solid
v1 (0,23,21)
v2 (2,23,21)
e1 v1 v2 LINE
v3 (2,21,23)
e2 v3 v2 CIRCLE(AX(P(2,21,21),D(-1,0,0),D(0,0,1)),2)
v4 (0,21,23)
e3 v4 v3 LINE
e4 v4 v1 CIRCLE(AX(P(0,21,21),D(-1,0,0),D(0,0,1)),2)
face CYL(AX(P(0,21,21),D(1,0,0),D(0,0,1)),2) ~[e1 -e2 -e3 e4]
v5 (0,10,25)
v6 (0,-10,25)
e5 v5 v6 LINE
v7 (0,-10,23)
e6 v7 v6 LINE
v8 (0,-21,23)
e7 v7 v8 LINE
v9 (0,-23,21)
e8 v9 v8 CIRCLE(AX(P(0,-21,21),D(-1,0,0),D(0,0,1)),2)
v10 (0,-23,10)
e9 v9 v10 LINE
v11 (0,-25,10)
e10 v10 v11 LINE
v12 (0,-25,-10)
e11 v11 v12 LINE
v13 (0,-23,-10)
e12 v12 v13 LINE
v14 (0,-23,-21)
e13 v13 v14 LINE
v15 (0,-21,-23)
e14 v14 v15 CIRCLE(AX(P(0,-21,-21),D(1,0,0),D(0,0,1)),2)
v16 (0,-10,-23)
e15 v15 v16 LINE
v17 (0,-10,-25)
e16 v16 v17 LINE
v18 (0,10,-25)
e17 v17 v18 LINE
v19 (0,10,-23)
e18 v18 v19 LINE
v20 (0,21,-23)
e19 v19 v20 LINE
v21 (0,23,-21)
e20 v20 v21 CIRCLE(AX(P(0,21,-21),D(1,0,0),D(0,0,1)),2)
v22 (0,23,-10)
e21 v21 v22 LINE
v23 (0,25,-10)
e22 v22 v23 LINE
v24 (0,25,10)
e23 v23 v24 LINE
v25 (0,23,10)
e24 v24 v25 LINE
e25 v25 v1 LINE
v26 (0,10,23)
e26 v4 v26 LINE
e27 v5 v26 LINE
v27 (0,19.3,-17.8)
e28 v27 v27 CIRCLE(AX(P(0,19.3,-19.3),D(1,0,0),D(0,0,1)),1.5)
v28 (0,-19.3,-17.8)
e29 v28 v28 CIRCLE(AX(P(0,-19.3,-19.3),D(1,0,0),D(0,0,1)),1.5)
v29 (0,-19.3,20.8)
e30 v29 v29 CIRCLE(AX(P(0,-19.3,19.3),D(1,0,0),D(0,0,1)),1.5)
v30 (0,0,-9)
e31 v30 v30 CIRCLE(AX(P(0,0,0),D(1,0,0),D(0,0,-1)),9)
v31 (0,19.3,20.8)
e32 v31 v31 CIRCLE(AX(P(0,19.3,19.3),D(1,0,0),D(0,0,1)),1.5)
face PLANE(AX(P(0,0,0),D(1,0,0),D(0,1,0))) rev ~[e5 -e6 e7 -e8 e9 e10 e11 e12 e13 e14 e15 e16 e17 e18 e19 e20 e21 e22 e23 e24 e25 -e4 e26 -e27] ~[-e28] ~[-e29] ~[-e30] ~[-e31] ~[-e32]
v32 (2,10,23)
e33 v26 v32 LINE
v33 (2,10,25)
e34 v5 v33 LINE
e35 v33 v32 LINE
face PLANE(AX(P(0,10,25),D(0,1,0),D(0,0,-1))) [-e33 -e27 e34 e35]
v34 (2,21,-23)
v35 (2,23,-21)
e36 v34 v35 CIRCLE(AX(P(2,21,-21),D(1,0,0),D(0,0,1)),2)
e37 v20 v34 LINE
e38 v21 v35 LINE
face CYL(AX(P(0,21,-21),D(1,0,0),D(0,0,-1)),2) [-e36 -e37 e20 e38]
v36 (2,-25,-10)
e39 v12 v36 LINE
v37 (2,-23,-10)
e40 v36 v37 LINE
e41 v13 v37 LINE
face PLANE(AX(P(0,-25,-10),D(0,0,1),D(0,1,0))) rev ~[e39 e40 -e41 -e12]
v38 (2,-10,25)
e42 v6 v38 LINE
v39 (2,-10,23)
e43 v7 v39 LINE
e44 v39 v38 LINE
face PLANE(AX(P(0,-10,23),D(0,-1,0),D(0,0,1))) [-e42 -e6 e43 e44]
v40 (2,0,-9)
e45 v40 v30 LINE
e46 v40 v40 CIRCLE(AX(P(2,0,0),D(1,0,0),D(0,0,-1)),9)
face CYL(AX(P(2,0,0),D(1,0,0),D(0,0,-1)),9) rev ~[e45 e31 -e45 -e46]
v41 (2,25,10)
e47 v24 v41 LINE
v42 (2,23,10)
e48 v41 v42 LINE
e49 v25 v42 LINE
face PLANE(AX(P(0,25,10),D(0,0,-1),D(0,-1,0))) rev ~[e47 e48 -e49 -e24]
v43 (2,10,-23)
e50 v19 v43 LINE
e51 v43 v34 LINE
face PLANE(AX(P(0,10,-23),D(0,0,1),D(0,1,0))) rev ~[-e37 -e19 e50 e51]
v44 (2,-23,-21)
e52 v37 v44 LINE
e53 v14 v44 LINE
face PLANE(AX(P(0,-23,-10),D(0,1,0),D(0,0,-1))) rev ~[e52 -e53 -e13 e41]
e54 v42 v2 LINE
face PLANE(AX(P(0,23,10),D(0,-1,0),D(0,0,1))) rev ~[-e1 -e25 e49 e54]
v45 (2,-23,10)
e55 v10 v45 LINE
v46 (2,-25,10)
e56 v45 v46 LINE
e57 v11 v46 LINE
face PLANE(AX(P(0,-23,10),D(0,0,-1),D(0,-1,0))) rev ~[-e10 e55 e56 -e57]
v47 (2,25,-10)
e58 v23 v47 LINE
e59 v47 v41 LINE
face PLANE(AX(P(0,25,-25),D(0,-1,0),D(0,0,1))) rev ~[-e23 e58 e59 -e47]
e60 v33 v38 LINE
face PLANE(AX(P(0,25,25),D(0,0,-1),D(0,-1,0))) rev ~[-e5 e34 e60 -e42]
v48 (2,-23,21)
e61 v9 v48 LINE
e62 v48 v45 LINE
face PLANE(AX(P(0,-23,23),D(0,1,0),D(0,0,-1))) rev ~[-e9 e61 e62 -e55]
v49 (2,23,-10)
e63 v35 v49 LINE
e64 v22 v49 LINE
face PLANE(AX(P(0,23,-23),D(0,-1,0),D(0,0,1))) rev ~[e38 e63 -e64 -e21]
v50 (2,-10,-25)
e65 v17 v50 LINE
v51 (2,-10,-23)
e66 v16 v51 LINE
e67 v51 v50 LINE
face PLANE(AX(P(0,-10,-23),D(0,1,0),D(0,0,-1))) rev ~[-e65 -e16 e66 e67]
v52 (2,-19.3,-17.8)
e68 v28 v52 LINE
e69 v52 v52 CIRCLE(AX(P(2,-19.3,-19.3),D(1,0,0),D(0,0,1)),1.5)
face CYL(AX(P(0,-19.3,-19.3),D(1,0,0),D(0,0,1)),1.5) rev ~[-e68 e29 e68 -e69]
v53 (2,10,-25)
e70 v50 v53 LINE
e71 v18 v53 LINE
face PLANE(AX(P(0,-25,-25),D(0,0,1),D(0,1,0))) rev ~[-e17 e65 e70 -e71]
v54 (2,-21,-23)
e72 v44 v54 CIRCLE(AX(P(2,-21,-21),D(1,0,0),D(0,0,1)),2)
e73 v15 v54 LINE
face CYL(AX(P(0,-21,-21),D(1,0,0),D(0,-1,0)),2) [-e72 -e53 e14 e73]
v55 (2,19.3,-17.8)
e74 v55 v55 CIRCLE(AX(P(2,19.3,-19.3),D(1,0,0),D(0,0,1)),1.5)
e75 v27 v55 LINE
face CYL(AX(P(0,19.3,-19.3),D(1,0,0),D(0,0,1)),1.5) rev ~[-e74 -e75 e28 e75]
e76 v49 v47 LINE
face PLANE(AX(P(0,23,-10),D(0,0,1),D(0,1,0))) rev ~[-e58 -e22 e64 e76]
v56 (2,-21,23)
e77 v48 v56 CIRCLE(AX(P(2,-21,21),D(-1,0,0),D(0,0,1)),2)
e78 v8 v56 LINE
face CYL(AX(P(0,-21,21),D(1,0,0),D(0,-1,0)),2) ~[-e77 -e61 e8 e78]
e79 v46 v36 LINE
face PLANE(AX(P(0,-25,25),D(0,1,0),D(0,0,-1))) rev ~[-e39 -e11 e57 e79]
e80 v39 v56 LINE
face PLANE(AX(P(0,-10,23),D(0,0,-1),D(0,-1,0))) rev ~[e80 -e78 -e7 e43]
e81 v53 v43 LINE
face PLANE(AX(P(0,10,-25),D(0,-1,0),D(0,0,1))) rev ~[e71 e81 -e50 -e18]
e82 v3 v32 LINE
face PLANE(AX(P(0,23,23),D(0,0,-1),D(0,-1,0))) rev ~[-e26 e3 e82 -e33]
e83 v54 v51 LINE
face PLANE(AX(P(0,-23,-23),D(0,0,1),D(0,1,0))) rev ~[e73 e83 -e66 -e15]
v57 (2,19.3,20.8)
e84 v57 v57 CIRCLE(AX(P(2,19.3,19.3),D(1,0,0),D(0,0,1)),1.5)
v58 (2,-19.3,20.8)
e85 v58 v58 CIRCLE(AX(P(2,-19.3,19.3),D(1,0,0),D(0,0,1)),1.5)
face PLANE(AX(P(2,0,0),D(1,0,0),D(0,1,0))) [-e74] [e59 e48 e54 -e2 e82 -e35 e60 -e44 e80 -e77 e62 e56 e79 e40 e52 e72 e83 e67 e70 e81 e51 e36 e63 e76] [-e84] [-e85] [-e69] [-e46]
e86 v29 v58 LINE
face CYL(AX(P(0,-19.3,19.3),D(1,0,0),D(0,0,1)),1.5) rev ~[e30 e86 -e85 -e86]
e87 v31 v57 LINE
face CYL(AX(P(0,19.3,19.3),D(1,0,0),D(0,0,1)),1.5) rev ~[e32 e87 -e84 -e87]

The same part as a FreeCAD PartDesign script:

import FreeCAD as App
import Part
import Sketcher

V = App.Vector


def edges_at(feature, points):
    """Names of the edges that pass closest to the given points."""
    edges = feature.Shape.Edges
    near = lambda p: min(range(len(edges)), key=lambda i: edges[i].distToShape(Part.Vertex(*p))[0])
    return sorted({f"Edge{near(p) + 1}" for p in points})

doc = App.newDocument("Part")
body = doc.addObject("PartDesign::Body", "Body")

# Sketch on YZ plane
sketch1 = body.newObject("Sketcher::SketchObject", "Sketch")
sketch1.AttachmentSupport = (doc.getObject("YZ_Plane"), [""])
sketch1.MapMode = "FlatFace"
sketch1.addGeometry(Part.LineSegment(V(-25, 25, 0), V(-25, -25, 0)), False)
sketch1.addGeometry(Part.LineSegment(V(-25, -25, 0), V(25, -25, 0)), False)
sketch1.addGeometry(Part.LineSegment(V(25, -25, 0), V(25, 25, 0)), False)
sketch1.addGeometry(Part.LineSegment(V(25, 25, 0), V(-25, 25, 0)), False)
sketch1.addConstraint(Sketcher.Constraint("Coincident", 0, 2, 1, 1))
sketch1.addConstraint(Sketcher.Constraint("Coincident", 1, 2, 2, 1))
sketch1.addConstraint(Sketcher.Constraint("Coincident", 2, 2, 3, 1))
sketch1.addConstraint(Sketcher.Constraint("Coincident", 3, 2, 0, 1))
sketch1.addConstraint(Sketcher.Constraint("Vertical", 0))
sketch1.addConstraint(Sketcher.Constraint("Horizontal", 1))
sketch1.addConstraint(Sketcher.Constraint("Vertical", 2))
sketch1.addConstraint(Sketcher.Constraint("Horizontal", 3))
sketch1.addConstraint(Sketcher.Constraint("Symmetric", 0, 2, 2, 2, -1, 1))
sketch1.addConstraint(Sketcher.Constraint("Equal", 3, 0))
sketch1.addConstraint(Sketcher.Constraint("DistanceX", 1, 1, 1, 2, 50.0))
pad1 = body.newObject("PartDesign::Pad", "Pad")
pad1.Profile = sketch1
pad1.Length = 2

# Sketch on YZ plane
sketch2 = body.newObject("Sketcher::SketchObject", "Sketch001")
sketch2.AttachmentSupport = (doc.getObject("YZ_Plane"), [""])
sketch2.MapMode = "FlatFace"
sketch2.addGeometry(Part.Circle(V(19.3, -19.3, 0), V(0, 0, 1), 1.5), False)
sketch2.addConstraint(Sketcher.Constraint("Diameter", 0, 3.0))
sketch2.addConstraint(Sketcher.Constraint("DistanceX", -1, 1, 0, 3, 19.3))
sketch2.addConstraint(Sketcher.Constraint("DistanceY", 0, 3, -1, 1, 19.3))
doc.recompute()
hole = body.newObject("PartDesign::Hole", "Hole")
hole.Profile = sketch2
hole.ThreadType = "None"
hole.Diameter = 3
hole.DepthType = "ThroughAll"
hole.Reversed = True

# Sketch on YZ plane
sketch3 = body.newObject("Sketcher::SketchObject", "Sketch002")
sketch3.AttachmentSupport = (doc.getObject("YZ_Plane"), [""])
sketch3.MapMode = "FlatFace"
sketch3.addGeometry(Part.Circle(V(19.3, 19.3, 0), V(0, 0, 1), 1.5), False)
sketch3.addConstraint(Sketcher.Constraint("Diameter", 0, 3.0))
sketch3.addConstraint(Sketcher.Constraint("DistanceX", -1, 1, 0, 3, 19.3))
sketch3.addConstraint(Sketcher.Constraint("DistanceY", -1, 1, 0, 3, 19.3))
doc.recompute()
hole2 = body.newObject("PartDesign::Hole", "Hole001")
hole2.Profile = sketch3
hole2.ThreadType = "None"
hole2.Diameter = 3
hole2.DepthType = "ThroughAll"
hole2.Reversed = True

# Sketch on YZ plane
sketch4 = body.newObject("Sketcher::SketchObject", "Sketch003")
sketch4.AttachmentSupport = (doc.getObject("YZ_Plane"), [""])
sketch4.MapMode = "FlatFace"
sketch4.addGeometry(Part.Circle(V(-19.3, -19.3, 0), V(0, 0, 1), 1.5), False)
sketch4.addConstraint(Sketcher.Constraint("Diameter", 0, 3.0))
sketch4.addConstraint(Sketcher.Constraint("DistanceX", 0, 3, -1, 1, 19.3))
sketch4.addConstraint(Sketcher.Constraint("DistanceY", 0, 3, -1, 1, 19.3))
doc.recompute()
hole3 = body.newObject("PartDesign::Hole", "Hole002")
hole3.Profile = sketch4
hole3.ThreadType = "None"
hole3.Diameter = 3
hole3.DepthType = "ThroughAll"
hole3.Reversed = True

# Sketch on YZ plane
sketch5 = body.newObject("Sketcher::SketchObject", "Sketch004")
sketch5.AttachmentSupport = (doc.getObject("YZ_Plane"), [""])
sketch5.MapMode = "FlatFace"
sketch5.addGeometry(Part.Circle(V(-19.3, 19.3, 0), V(0, 0, 1), 1.5), False)
sketch5.addConstraint(Sketcher.Constraint("Diameter", 0, 3.0))
sketch5.addConstraint(Sketcher.Constraint("DistanceX", 0, 3, -1, 1, 19.3))
sketch5.addConstraint(Sketcher.Constraint("DistanceY", -1, 1, 0, 3, 19.3))
doc.recompute()
hole4 = body.newObject("PartDesign::Hole", "Hole003")
hole4.Profile = sketch5
hole4.ThreadType = "None"
hole4.Diameter = 3
hole4.DepthType = "ThroughAll"
hole4.Reversed = True

# Sketch on YZ plane
sketch6 = body.newObject("Sketcher::SketchObject", "Sketch005")
sketch6.AttachmentSupport = (doc.getObject("YZ_Plane"), [""])
sketch6.MapMode = "FlatFace"
sketch6.addGeometry(Part.LineSegment(V(-10, 23, 0), V(-23, 23, 0)), False)
sketch6.addGeometry(Part.LineSegment(V(-23, 23, 0), V(-23, 10, 0)), False)
sketch6.addGeometry(Part.LineSegment(V(-23, 10, 0), V(-25, 10, 0)), False)
sketch6.addGeometry(Part.LineSegment(V(-25, 10, 0), V(-25, 25, 0)), False)
sketch6.addGeometry(Part.LineSegment(V(-25, 25, 0), V(-10, 25, 0)), False)
sketch6.addGeometry(Part.LineSegment(V(-10, 25, 0), V(-10, 23, 0)), False)
sketch6.addGeometry(Part.LineSegment(V(-25, -10, 0), V(-23, -10, 0)), False)
sketch6.addGeometry(Part.LineSegment(V(-23, -10, 0), V(-23, -23, 0)), False)
sketch6.addGeometry(Part.LineSegment(V(-23, -23, 0), V(-10, -23, 0)), False)
sketch6.addGeometry(Part.LineSegment(V(-10, -23, 0), V(-10, -25, 0)), False)
sketch6.addGeometry(Part.LineSegment(V(-10, -25, 0), V(-25, -25, 0)), False)
sketch6.addGeometry(Part.LineSegment(V(-25, -25, 0), V(-25, -10, 0)), False)
sketch6.addGeometry(Part.LineSegment(V(23, 23, 0), V(10, 23, 0)), False)
sketch6.addGeometry(Part.LineSegment(V(10, 23, 0), V(10, 25, 0)), False)
sketch6.addGeometry(Part.LineSegment(V(10, 25, 0), V(25, 25, 0)), False)
sketch6.addGeometry(Part.LineSegment(V(25, 25, 0), V(25, 10, 0)), False)
sketch6.addGeometry(Part.LineSegment(V(25, 10, 0), V(23, 10, 0)), False)
sketch6.addGeometry(Part.LineSegment(V(23, 10, 0), V(23, 23, 0)), False)
sketch6.addGeometry(Part.LineSegment(V(10, -25, 0), V(10, -23, 0)), False)
sketch6.addGeometry(Part.LineSegment(V(10, -23, 0), V(23, -23, 0)), False)
sketch6.addGeometry(Part.LineSegment(V(23, -23, 0), V(23, -10, 0)), False)
sketch6.addGeometry(Part.LineSegment(V(23, -10, 0), V(25, -10, 0)), False)
sketch6.addGeometry(Part.LineSegment(V(25, -10, 0), V(25, -25, 0)), False)
sketch6.addGeometry(Part.LineSegment(V(25, -25, 0), V(10, -25, 0)), False)
sketch6.addConstraint(Sketcher.Constraint("Coincident", 0, 2, 1, 1))
sketch6.addConstraint(Sketcher.Constraint("Coincident", 1, 2, 2, 1))
sketch6.addConstraint(Sketcher.Constraint("Coincident", 2, 2, 3, 1))
sketch6.addConstraint(Sketcher.Constraint("Coincident", 3, 2, 4, 1))
sketch6.addConstraint(Sketcher.Constraint("Coincident", 4, 2, 5, 1))
sketch6.addConstraint(Sketcher.Constraint("Coincident", 5, 2, 0, 1))
sketch6.addConstraint(Sketcher.Constraint("Coincident", 6, 2, 7, 1))
sketch6.addConstraint(Sketcher.Constraint("Coincident", 7, 2, 8, 1))
sketch6.addConstraint(Sketcher.Constraint("Coincident", 8, 2, 9, 1))
sketch6.addConstraint(Sketcher.Constraint("Coincident", 9, 2, 10, 1))
sketch6.addConstraint(Sketcher.Constraint("Coincident", 10, 2, 11, 1))
sketch6.addConstraint(Sketcher.Constraint("Coincident", 11, 2, 6, 1))
sketch6.addConstraint(Sketcher.Constraint("Coincident", 12, 2, 13, 1))
sketch6.addConstraint(Sketcher.Constraint("Coincident", 13, 2, 14, 1))
sketch6.addConstraint(Sketcher.Constraint("Coincident", 14, 2, 15, 1))
sketch6.addConstraint(Sketcher.Constraint("Coincident", 15, 2, 16, 1))
sketch6.addConstraint(Sketcher.Constraint("Coincident", 16, 2, 17, 1))
sketch6.addConstraint(Sketcher.Constraint("Coincident", 17, 2, 12, 1))
sketch6.addConstraint(Sketcher.Constraint("Coincident", 18, 2, 19, 1))
sketch6.addConstraint(Sketcher.Constraint("Coincident", 19, 2, 20, 1))
sketch6.addConstraint(Sketcher.Constraint("Coincident", 20, 2, 21, 1))
sketch6.addConstraint(Sketcher.Constraint("Coincident", 21, 2, 22, 1))
sketch6.addConstraint(Sketcher.Constraint("Coincident", 22, 2, 23, 1))
sketch6.addConstraint(Sketcher.Constraint("Coincident", 23, 2, 18, 1))
sketch6.addConstraint(Sketcher.Constraint("Horizontal", 0))
sketch6.addConstraint(Sketcher.Constraint("Vertical", 1))
sketch6.addConstraint(Sketcher.Constraint("Horizontal", 2))
sketch6.addConstraint(Sketcher.Constraint("Vertical", 3))
sketch6.addConstraint(Sketcher.Constraint("Horizontal", 4))
sketch6.addConstraint(Sketcher.Constraint("Vertical", 5))
sketch6.addConstraint(Sketcher.Constraint("Horizontal", 6))
sketch6.addConstraint(Sketcher.Constraint("Vertical", 7))
sketch6.addConstraint(Sketcher.Constraint("Horizontal", 8))
sketch6.addConstraint(Sketcher.Constraint("Vertical", 9))
sketch6.addConstraint(Sketcher.Constraint("Horizontal", 10))
sketch6.addConstraint(Sketcher.Constraint("Vertical", 11))
sketch6.addConstraint(Sketcher.Constraint("Horizontal", 12))
sketch6.addConstraint(Sketcher.Constraint("Vertical", 13))
sketch6.addConstraint(Sketcher.Constraint("Horizontal", 14))
sketch6.addConstraint(Sketcher.Constraint("Vertical", 15))
sketch6.addConstraint(Sketcher.Constraint("Horizontal", 16))
sketch6.addConstraint(Sketcher.Constraint("Vertical", 17))
sketch6.addConstraint(Sketcher.Constraint("Vertical", 18))
sketch6.addConstraint(Sketcher.Constraint("Horizontal", 19))
sketch6.addConstraint(Sketcher.Constraint("Vertical", 20))
sketch6.addConstraint(Sketcher.Constraint("Horizontal", 21))
sketch6.addConstraint(Sketcher.Constraint("Vertical", 22))
sketch6.addConstraint(Sketcher.Constraint("Horizontal", 23))
sketch6.addConstraint(Sketcher.Constraint("Symmetric", 8, 2, 12, 2, -1, 1))
sketch6.addConstraint(Sketcher.Constraint("Symmetric", 10, 2, 14, 2, -1, 1))
sketch6.addConstraint(Sketcher.Constraint("Symmetric", 6, 2, 16, 2, -1, 1))
sketch6.addConstraint(Sketcher.Constraint("Symmetric", 5, 2, 18, 2, -1, 1))
sketch6.addConstraint(Sketcher.Constraint("Symmetric", 1, 2, 20, 2, -1, 1))
sketch6.addConstraint(Sketcher.Constraint("Symmetric", 3, 2, 22, 2, -1, 1))
sketch6.addConstraint(Sketcher.Constraint("Symmetric", 5, 2, 12, 2, -2))
sketch6.addConstraint(Sketcher.Constraint("Symmetric", 3, 2, 14, 2, -2))
sketch6.addConstraint(Sketcher.Constraint("Symmetric", 1, 2, 16, 2, -2))
sketch6.addConstraint(Sketcher.Constraint("Equal", 19, 1))
sketch6.addConstraint(Sketcher.Constraint("Equal", 23, 3))
sketch6.addConstraint(Sketcher.Constraint("DistanceY", 6, 2, 1, 2, 20.0))
sketch6.addConstraint(Sketcher.Constraint("DistanceY", 7, 2, 0, 2, 46.0))
sketch6.addConstraint(Sketcher.Constraint("DistanceX", 5, 2, 12, 2, 20.0))
sketch6.addConstraint(Sketcher.Constraint("DistanceX", 2, 2, 2, 1, 2.0))
pocket1 = body.newObject("PartDesign::Pocket", "Pocket")
pocket1.Profile = sketch6
pocket1.Length = 2
pocket1.Reversed = True

# Sketch on YZ plane
sketch7 = body.newObject("Sketcher::SketchObject", "Sketch006")
sketch7.AttachmentSupport = (doc.getObject("YZ_Plane"), [""])
sketch7.MapMode = "FlatFace"
sketch7.AttachmentOffset = App.Placement(V(0, 0, 2), App.Rotation())
sketch7.addGeometry(Part.Circle(V(0, 0, 0), V(0, 0, 1), 9), False)
sketch7.addConstraint(Sketcher.Constraint("Coincident", 0, 3, -1, 1))
sketch7.addConstraint(Sketcher.Constraint("Diameter", 0, 18.0))
pocket2 = body.newObject("PartDesign::Pocket", "Pocket001")
pocket2.Profile = sketch7
pocket2.Length = 2
doc.recompute()

fillet = body.newObject("PartDesign::Fillet", "Fillet")
fillet.Base = (pocket2, edges_at(pocket2, [
    (1, 23, 23),
    (1, -23, 23),
    (1, -23, -23),
    (1, 23, -23),
]))
fillet.Radius = 2

doc.recompute()
